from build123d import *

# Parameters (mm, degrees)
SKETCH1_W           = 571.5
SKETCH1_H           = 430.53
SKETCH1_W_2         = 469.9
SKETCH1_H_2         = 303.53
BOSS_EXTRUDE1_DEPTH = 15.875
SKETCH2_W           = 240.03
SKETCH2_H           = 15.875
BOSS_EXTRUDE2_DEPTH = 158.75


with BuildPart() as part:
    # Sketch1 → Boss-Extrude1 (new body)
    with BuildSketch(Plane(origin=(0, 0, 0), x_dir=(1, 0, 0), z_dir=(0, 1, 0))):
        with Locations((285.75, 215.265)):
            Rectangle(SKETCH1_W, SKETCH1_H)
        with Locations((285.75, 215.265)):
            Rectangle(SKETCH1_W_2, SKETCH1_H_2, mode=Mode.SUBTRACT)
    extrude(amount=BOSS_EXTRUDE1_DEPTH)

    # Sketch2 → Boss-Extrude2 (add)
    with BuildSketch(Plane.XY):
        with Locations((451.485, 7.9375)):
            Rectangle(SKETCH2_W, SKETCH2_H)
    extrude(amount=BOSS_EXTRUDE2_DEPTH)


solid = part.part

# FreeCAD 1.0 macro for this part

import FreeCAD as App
import Part
import Sketcher
from FreeCAD import Vector
Q = App.Units.Quantity

doc = App.newDocument("Part")
body = doc.addObject("PartDesign::Body", "Body")

# Sketch on XZ plane
sketch1 = doc.addObject("Sketcher::SketchObject", "Sketch")
body.addObject(sketch1)
sketch1.AttachmentSupport = (doc.XZ_Plane, [""])
sketch1.MapMode = "FlatFace"
sketch1.addGeometry([
    Part.LineSegment(Vector(0, -431, 0), Vector(0, 0, 0)),  # 0
    Part.LineSegment(Vector(0, 0, 0), Vector(572, 0, 0)),  # 1
    Part.LineSegment(Vector(572, 0, 0), Vector(572, -431, 0)),  # 2
    Part.LineSegment(Vector(572, -431, 0), Vector(0, -431, 0)),  # 3
    Part.LineSegment(Vector(521, -64, 0), Vector(51, -64, 0)),  # 4
    Part.LineSegment(Vector(51, -64, 0), Vector(51, -367, 0)),  # 5
    Part.LineSegment(Vector(51, -367, 0), Vector(521, -367, 0)),  # 6
    Part.LineSegment(Vector(521, -367, 0), Vector(521, -64, 0)),  # 7
], False)
sketch1.addConstraint([
    Sketcher.Constraint("Coincident", 0, 2, 1, 1),
    Sketcher.Constraint("Coincident", 1, 2, 2, 1),
    Sketcher.Constraint("Coincident", 2, 2, 3, 1),
    Sketcher.Constraint("Coincident", 3, 2, 0, 1),
    Sketcher.Constraint("Coincident", 4, 2, 5, 1),
    Sketcher.Constraint("Coincident", 5, 2, 6, 1),
    Sketcher.Constraint("Coincident", 6, 2, 7, 1),
    Sketcher.Constraint("Coincident", 7, 2, 4, 1),
    Sketcher.Constraint("Vertical", 0),
    Sketcher.Constraint("Horizontal", 1),
    Sketcher.Constraint("Vertical", 2),
    Sketcher.Constraint("Horizontal", 3),
    Sketcher.Constraint("Horizontal", 4),
    Sketcher.Constraint("Vertical", 5),
    Sketcher.Constraint("Horizontal", 6),
    Sketcher.Constraint("Vertical", 7),
    Sketcher.Constraint("Coincident", 0, 2, -1, 1),
    Sketcher.Constraint("DistanceX", 1, 1, 1, 2, Q("22.5 in")),
    Sketcher.Constraint("DistanceX", 4, 2, 4, 1, Q("18.5 in")),
    Sketcher.Constraint("DistanceX", -1, 1, 4, 2, Q("2 in")),
    Sketcher.Constraint("DistanceY", 0, 1, 0, 2, Q("16.95 in")),
    Sketcher.Constraint("DistanceY", 5, 2, 5, 1, Q("11.95 in")),
    Sketcher.Constraint("DistanceY", 4, 2, -1, 1, Q("2.5 in")),
])
pad1 = doc.addObject("PartDesign::Pad", "Pad")
body.addObject(pad1)
pad1.Profile = sketch1
pad1.Length = Q("0.625 in")
pad1.Reversed = True

# Sketch on XY plane
sketch2 = doc.addObject("Sketcher::SketchObject", "Sketch001")
body.addObject(sketch2)
sketch2.AttachmentSupport = (doc.XY_Plane, [""])
sketch2.MapMode = "FlatFace"
sketch2.addGeometry([
    Part.LineSegment(Vector(331, 16, 0), Vector(331, 0, 0)),
    Part.LineSegment(Vector(331, 0, 0), Vector(572, 0, 0)),
    Part.LineSegment(Vector(572, 0, 0), Vector(572, 16, 0)),
    Part.LineSegment(Vector(572, 16, 0), Vector(331, 16, 0)),
], False)
sketch2.addConstraint([
    Sketcher.Constraint("Coincident", 0, 2, 1, 1),
    Sketcher.Constraint("Coincident", 1, 2, 2, 1),
    Sketcher.Constraint("Coincident", 2, 2, 3, 1),
    Sketcher.Constraint("Coincident", 3, 2, 0, 1),
    Sketcher.Constraint("Vertical", 0),
    Sketcher.Constraint("Horizontal", 1),
    Sketcher.Constraint("Vertical", 2),
    Sketcher.Constraint("Horizontal", 3),
    Sketcher.Constraint("PointOnObject", 0, 2, -1),
    Sketcher.Constraint("DistanceX", 1, 1, 1, 2, Q("9.45 in")),
    Sketcher.Constraint("DistanceX", -1, 1, 1, 2, Q("22.5 in")),
    Sketcher.Constraint("DistanceY", 0, 2, 0, 1, Q("0.625 in")),
])
pad2 = doc.addObject("PartDesign::Pad", "Pad001")
body.addObject(pad2)
pad2.Profile = sketch2
pad2.Length = Q("6.25 in")

doc.recompute()
